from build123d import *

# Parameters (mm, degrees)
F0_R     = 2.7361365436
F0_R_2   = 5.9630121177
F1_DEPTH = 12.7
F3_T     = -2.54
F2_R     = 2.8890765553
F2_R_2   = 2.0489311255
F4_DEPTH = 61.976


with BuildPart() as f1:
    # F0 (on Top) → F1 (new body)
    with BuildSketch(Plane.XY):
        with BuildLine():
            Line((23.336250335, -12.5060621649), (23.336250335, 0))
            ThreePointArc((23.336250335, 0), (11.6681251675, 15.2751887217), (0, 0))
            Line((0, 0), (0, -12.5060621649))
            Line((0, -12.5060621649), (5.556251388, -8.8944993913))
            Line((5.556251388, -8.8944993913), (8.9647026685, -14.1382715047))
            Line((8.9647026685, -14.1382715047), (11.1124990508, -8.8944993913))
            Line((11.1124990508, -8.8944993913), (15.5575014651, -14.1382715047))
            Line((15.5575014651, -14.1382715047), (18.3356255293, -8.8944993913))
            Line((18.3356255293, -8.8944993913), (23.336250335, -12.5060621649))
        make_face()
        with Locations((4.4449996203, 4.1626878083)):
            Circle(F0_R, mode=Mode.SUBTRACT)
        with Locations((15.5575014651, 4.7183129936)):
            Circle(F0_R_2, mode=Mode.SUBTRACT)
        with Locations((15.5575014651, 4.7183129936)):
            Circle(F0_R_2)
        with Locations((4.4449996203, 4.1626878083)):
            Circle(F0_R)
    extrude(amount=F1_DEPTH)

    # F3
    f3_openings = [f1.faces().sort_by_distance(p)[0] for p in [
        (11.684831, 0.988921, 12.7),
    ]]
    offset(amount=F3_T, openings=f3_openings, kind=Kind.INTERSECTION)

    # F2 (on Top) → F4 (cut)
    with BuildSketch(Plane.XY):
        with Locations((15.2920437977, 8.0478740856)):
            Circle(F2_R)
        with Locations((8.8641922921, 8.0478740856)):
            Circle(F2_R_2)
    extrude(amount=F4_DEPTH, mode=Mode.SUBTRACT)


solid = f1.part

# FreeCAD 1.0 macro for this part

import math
import FreeCAD as App
import Part
import Sketcher
Q = App.Units.Quantity


def faces_at(feature, points):
    """Names of the faces that lie closest to the given points."""
    faces = feature.Shape.Faces
    near = lambda p: min(range(len(faces)), key=lambda i: faces[i].distToShape(Part.Vertex(*p))[0])
    return sorted({f"Face{near(p) + 1}" for p in points})

doc = App.newDocument("Part")
body = doc.addObject("PartDesign::Body", "Body")

# Sketch on XY plane
sketch1 = doc.addObject("Sketcher::SketchObject", "Sketch")
body.addObject(sketch1)
sketch1.AttachmentSupport = (doc.XY_Plane, [""])
sketch1.MapMode = "FlatFace"
sketch1.addGeometry(Part.LineSegment(App.Vector(23.33625, -12.506062, 0), App.Vector(23.33625, 0, 0)), False)
sketch1.addGeometry(Part.ArcOfCircle(Part.Circle(App.Vector(11.668125, 3.18118, 0), App.Vector(0, 0, 1), 12.094009), math.radians(-15.250383), math.radians(195.250383)), False)
sketch1.addGeometry(Part.LineSegment(App.Vector(0, 0, 0), App.Vector(0, -12.506062, 0)), False)
sketch1.addGeometry(Part.LineSegment(App.Vector(0, -12.506062, 0), App.Vector(5.556251, -8.894499, 0)), False)
sketch1.addGeometry(Part.LineSegment(App.Vector(5.556251, -8.894499, 0), App.Vector(8.964703, -14.138272, 0)), False)
sketch1.addGeometry(Part.LineSegment(App.Vector(8.964703, -14.138272, 0), App.Vector(11.112499, -8.894499, 0)), False)
sketch1.addGeometry(Part.LineSegment(App.Vector(11.112499, -8.894499, 0), App.Vector(15.557501, -14.138272, 0)), False)
sketch1.addGeometry(Part.LineSegment(App.Vector(15.557501, -14.138272, 0), App.Vector(18.335626, -8.894499, 0)), False)
sketch1.addGeometry(Part.LineSegment(App.Vector(18.335626, -8.894499, 0), App.Vector(23.33625, -12.506062, 0)), False)
sketch1.addConstraint(Sketcher.Constraint("Coincident", 0, 2, 1, 1))
sketch1.addConstraint(Sketcher.Constraint("Coincident", 1, 2, 2, 1))
sketch1.addConstraint(Sketcher.Constraint("Coincident", 2, 2, 3, 1))
sketch1.addConstraint(Sketcher.Constraint("Coincident", 3, 2, 4, 1))
sketch1.addConstraint(Sketcher.Constraint("Coincident", 4, 2, 5, 1))
sketch1.addConstraint(Sketcher.Constraint("Coincident", 5, 2, 6, 1))
sketch1.addConstraint(Sketcher.Constraint("Coincident", 6, 2, 7, 1))
sketch1.addConstraint(Sketcher.Constraint("Coincident", 7, 2, 8, 1))
sketch1.addConstraint(Sketcher.Constraint("Coincident", 8, 2, 0, 1))
sketch1.addConstraint(Sketcher.Constraint("Vertical", 0))
sketch1.addConstraint(Sketcher.Constraint("Vertical", 2))
sketch1.addConstraint(Sketcher.Constraint("Coincident", 1, 2, -1, 1))
sketch1.addConstraint(Sketcher.Constraint("PointOnObject", 0, 2, -1))
sketch1.addConstraint(Sketcher.Constraint("Perpendicular", 3, 4))
sketch1.addConstraint(Sketcher.Constraint("Horizontal", 3, 2, 5, 2))
sketch1.addConstraint(Sketcher.Constraint("Horizontal", 4, 2, 6, 2))
sketch1.addConstraint(Sketcher.Constraint("Horizontal", 5, 2, 7, 2))
sketch1.addConstraint(Sketcher.Constraint("Horizontal", 2, 2, 8, 2))
sketch1.addConstraint(Sketcher.Constraint("DistanceX", 3, 2, 0, 2, Q("0.7 in")))
sketch1.addConstraint(Sketcher.Constraint("DistanceX", -1, 1, 3, 2, Q("0.2187501 in")))
sketch1.addConstraint(Sketcher.Constraint("DistanceX", -1, 1, 5, 2, Q("0.4375 in")))
sketch1.addConstraint(Sketcher.Constraint("Radius", 1, Q("12.094009 mm")))
sketch1.addConstraint(Sketcher.Constraint("DistanceX", 5, 2, 6, 2, Q("0.1750001 in")))
sketch1.addConstraint(Sketcher.Constraint("DistanceX", 6, 2, 7, 2, Q("0.109375 in")))
sketch1.addConstraint(Sketcher.Constraint("Distance", 3, Q("0.2609001 in")))
sketch1.addConstraint(Sketcher.Constraint("DistanceY", 3, 2, -1, 1, Q("8.894499 mm")))
sketch1.addConstraint(Sketcher.Constraint("DistanceX", 4, 2, 6, 2, Q("6.592799 mm")))
pad1 = doc.addObject("PartDesign::Pad", "Pad")
body.addObject(pad1)
pad1.Profile = sketch1
pad1.Length = Q("0.5 in")
doc.recompute()

thickness = doc.addObject("PartDesign::Thickness", "Thickness")
body.addObject(thickness)
thickness.Base = (pad1, faces_at(pad1, [(11.668, 0.568, 12.7)]))
thickness.Value = Q("0.1 in")
thickness.Reversed = True
thickness.Join = "Intersection"

# Sketch on XY plane
sketch2 = doc.addObject("Sketcher::SketchObject", "Sketch001")
body.addObject(sketch2)
sketch2.AttachmentSupport = (doc.XY_Plane, [""])
sketch2.MapMode = "FlatFace"
sketch2.addGeometry(Part.Circle(App.Vector(15.292044, 8.047874, 0), App.Vector(0, 0, 1), 2.889077), False)
sketch2.addGeometry(Part.Circle(App.Vector(8.864192, 8.047874, 0), App.Vector(0, 0, 1), 2.048931), False)
sketch2.addConstraint(Sketcher.Constraint("Horizontal", 0, 3, 1, 3))
sketch2.addConstraint(Sketcher.Constraint("Diameter", 0, Q("5.778153 mm")))
sketch2.addConstraint(Sketcher.Constraint("Diameter", 1, Q("4.097862 mm")))
sketch2.addConstraint(Sketcher.Constraint("DistanceX", 1, 3, 0, 3, Q("6.427852 mm")))
sketch2.addConstraint(Sketcher.Constraint("DistanceX", -1, 1, 0, 3, Q("15.292044 mm")))
sketch2.addConstraint(Sketcher.Constraint("DistanceY", -1, 1, 0, 3, Q("8.047874 mm")))
pocket1 = doc.addObject("PartDesign::Pocket", "Pocket")
body.addObject(pocket1)
pocket1.Profile = sketch2
pocket1.Length = Q("2.44 in")
pocket1.Reversed = True

doc.recompute()
